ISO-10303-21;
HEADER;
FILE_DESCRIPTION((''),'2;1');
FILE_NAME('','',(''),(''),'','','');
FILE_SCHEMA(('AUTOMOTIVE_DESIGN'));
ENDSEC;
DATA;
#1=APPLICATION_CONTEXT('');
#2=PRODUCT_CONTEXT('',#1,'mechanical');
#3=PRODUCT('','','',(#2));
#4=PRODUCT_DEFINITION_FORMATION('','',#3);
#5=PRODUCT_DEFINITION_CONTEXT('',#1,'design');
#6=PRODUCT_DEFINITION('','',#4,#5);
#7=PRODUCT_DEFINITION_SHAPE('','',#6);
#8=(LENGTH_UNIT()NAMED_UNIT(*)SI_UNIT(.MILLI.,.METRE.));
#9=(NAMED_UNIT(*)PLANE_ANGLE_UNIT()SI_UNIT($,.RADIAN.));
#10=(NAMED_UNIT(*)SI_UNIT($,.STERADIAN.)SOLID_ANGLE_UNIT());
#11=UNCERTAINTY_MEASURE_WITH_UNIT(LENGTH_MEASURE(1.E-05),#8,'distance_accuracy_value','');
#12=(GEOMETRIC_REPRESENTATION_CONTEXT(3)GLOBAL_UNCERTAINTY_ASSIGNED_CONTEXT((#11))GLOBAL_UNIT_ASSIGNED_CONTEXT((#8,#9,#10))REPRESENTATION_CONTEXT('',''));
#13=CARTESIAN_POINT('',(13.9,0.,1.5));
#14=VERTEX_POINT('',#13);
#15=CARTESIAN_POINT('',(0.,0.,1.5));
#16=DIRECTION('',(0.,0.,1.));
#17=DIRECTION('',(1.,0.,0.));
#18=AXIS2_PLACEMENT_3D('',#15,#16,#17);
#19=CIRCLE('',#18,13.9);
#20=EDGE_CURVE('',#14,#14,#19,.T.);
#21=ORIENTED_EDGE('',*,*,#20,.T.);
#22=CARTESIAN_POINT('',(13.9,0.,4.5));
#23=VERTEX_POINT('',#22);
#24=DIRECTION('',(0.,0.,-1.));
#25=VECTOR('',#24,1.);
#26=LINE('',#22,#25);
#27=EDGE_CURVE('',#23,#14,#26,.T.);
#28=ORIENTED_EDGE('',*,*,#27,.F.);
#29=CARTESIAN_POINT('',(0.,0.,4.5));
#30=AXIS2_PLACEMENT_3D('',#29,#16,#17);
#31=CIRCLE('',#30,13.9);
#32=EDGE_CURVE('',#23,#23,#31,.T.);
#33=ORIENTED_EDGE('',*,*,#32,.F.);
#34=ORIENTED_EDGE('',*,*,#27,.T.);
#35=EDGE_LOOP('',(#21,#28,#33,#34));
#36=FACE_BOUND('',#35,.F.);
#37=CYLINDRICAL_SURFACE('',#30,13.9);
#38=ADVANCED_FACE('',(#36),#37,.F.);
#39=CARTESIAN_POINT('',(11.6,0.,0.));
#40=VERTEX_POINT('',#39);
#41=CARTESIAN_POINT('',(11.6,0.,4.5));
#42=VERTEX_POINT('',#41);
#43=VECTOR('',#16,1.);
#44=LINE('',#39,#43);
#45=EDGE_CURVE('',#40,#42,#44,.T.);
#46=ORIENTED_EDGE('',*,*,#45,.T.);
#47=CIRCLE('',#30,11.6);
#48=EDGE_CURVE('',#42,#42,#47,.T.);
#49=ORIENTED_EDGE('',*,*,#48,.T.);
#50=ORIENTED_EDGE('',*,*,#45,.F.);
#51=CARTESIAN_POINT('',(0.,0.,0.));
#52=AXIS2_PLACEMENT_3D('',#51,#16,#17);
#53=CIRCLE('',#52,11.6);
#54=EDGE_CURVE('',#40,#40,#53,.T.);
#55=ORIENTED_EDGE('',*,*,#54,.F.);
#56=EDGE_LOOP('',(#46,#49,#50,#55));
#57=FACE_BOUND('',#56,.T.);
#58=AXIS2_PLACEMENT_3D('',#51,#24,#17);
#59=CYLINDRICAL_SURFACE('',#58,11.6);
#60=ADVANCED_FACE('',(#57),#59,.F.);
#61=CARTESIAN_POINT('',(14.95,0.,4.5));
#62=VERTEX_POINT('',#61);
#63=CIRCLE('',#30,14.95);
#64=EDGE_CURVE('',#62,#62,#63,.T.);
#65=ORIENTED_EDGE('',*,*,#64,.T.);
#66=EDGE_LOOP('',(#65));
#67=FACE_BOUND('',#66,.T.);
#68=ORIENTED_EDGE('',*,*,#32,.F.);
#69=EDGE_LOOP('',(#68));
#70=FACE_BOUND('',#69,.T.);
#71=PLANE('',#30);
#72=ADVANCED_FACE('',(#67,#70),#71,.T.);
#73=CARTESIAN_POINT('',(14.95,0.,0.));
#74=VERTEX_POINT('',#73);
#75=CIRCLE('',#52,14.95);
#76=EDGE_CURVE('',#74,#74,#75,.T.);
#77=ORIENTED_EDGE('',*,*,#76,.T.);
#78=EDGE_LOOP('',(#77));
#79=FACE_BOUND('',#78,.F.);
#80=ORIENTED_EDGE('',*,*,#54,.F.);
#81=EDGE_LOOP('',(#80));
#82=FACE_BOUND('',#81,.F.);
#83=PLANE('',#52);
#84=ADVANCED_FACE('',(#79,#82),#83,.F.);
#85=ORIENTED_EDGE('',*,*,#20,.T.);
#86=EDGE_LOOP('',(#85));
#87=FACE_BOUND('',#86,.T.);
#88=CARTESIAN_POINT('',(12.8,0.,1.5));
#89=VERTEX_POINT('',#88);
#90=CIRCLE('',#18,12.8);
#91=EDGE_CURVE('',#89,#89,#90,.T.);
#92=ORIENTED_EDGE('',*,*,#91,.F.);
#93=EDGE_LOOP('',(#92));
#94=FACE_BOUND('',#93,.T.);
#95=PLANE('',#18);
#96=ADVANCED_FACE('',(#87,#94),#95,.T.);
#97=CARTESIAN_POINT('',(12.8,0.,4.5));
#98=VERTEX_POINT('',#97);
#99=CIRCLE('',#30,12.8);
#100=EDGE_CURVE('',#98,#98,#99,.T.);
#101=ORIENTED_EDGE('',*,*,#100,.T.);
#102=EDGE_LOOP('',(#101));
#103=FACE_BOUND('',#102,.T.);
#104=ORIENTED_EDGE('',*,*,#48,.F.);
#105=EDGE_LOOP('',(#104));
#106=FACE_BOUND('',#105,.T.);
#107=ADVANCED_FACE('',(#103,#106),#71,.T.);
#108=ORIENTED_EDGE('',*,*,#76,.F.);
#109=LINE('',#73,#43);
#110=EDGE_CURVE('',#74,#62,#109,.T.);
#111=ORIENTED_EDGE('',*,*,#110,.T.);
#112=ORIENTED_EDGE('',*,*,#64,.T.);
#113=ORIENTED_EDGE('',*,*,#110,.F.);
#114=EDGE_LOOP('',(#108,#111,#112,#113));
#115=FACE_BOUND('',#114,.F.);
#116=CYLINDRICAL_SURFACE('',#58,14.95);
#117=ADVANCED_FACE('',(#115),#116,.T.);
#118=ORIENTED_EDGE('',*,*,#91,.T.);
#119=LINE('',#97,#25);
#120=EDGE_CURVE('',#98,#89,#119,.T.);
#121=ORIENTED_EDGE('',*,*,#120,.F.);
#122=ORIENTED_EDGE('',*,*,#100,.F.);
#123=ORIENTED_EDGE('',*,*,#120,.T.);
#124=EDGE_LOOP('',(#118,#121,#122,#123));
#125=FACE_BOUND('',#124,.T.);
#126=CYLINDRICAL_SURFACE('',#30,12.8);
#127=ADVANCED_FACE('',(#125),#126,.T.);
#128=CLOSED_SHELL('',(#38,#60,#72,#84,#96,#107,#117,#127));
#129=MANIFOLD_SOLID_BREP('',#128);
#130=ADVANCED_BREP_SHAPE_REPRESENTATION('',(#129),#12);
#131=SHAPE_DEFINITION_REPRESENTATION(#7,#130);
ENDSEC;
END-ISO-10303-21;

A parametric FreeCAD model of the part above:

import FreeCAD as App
import Part
import Sketcher

doc = App.newDocument("Part")
body = doc.addObject("PartDesign::Body", "Body")

# Sketch on XY plane
sketch1 = body.newObject("Sketcher::SketchObject", "Sketch")
sketch1.AttachmentSupport = (doc.getObject("XY_Plane"), [""])
sketch1.MapMode = "FlatFace"
sketch1.addGeometry([
    Part.Circle(App.Vector(0, 0, 0), App.Vector(0, 0, 1), 15),
    Part.Circle(App.Vector(0, 0, 0), App.Vector(0, 0, 1), 12),
], False)
sketch1.addConstraint([
    Sketcher.Constraint("Coincident", 0, 3, -1, 1),
    Sketcher.Constraint("Coincident", 1, 3, -1, 1),
    Sketcher.Constraint("Diameter", 0, 29.9),
    Sketcher.Constraint("Diameter", 1, 23.2),
])
pad1 = body.newObject("PartDesign::Pad", "Pad")
pad1.Profile = sketch1
pad1.Length = 4.5

# Sketch on XY plane
sketch2 = body.newObject("Sketcher::SketchObject", "Sketch001")
sketch2.AttachmentSupport = (doc.getObject("XY_Plane"), [""])
sketch2.MapMode = "FlatFace"
sketch2.AttachmentOffset = App.Placement(App.Vector(0, 0, 4.5), App.Rotation())
sketch2.addGeometry([
    Part.Circle(App.Vector(0, 0, 0), App.Vector(0, 0, 1), 14),
    Part.Circle(App.Vector(0, 0, 0), App.Vector(0, 0, 1), 13),
], False)
sketch2.addConstraint([
    Sketcher.Constraint("Coincident", 0, 3, -1, 1),
    Sketcher.Constraint("Coincident", 1, 3, -1, 1),
    Sketcher.Constraint("Diameter", 0, 27.8),
    Sketcher.Constraint("Diameter", 1, 25.6),
])
pocket1 = body.newObject("PartDesign::Pocket", "Pocket")
pocket1.Profile = sketch2
pocket1.Length = 3

doc.recompute()
